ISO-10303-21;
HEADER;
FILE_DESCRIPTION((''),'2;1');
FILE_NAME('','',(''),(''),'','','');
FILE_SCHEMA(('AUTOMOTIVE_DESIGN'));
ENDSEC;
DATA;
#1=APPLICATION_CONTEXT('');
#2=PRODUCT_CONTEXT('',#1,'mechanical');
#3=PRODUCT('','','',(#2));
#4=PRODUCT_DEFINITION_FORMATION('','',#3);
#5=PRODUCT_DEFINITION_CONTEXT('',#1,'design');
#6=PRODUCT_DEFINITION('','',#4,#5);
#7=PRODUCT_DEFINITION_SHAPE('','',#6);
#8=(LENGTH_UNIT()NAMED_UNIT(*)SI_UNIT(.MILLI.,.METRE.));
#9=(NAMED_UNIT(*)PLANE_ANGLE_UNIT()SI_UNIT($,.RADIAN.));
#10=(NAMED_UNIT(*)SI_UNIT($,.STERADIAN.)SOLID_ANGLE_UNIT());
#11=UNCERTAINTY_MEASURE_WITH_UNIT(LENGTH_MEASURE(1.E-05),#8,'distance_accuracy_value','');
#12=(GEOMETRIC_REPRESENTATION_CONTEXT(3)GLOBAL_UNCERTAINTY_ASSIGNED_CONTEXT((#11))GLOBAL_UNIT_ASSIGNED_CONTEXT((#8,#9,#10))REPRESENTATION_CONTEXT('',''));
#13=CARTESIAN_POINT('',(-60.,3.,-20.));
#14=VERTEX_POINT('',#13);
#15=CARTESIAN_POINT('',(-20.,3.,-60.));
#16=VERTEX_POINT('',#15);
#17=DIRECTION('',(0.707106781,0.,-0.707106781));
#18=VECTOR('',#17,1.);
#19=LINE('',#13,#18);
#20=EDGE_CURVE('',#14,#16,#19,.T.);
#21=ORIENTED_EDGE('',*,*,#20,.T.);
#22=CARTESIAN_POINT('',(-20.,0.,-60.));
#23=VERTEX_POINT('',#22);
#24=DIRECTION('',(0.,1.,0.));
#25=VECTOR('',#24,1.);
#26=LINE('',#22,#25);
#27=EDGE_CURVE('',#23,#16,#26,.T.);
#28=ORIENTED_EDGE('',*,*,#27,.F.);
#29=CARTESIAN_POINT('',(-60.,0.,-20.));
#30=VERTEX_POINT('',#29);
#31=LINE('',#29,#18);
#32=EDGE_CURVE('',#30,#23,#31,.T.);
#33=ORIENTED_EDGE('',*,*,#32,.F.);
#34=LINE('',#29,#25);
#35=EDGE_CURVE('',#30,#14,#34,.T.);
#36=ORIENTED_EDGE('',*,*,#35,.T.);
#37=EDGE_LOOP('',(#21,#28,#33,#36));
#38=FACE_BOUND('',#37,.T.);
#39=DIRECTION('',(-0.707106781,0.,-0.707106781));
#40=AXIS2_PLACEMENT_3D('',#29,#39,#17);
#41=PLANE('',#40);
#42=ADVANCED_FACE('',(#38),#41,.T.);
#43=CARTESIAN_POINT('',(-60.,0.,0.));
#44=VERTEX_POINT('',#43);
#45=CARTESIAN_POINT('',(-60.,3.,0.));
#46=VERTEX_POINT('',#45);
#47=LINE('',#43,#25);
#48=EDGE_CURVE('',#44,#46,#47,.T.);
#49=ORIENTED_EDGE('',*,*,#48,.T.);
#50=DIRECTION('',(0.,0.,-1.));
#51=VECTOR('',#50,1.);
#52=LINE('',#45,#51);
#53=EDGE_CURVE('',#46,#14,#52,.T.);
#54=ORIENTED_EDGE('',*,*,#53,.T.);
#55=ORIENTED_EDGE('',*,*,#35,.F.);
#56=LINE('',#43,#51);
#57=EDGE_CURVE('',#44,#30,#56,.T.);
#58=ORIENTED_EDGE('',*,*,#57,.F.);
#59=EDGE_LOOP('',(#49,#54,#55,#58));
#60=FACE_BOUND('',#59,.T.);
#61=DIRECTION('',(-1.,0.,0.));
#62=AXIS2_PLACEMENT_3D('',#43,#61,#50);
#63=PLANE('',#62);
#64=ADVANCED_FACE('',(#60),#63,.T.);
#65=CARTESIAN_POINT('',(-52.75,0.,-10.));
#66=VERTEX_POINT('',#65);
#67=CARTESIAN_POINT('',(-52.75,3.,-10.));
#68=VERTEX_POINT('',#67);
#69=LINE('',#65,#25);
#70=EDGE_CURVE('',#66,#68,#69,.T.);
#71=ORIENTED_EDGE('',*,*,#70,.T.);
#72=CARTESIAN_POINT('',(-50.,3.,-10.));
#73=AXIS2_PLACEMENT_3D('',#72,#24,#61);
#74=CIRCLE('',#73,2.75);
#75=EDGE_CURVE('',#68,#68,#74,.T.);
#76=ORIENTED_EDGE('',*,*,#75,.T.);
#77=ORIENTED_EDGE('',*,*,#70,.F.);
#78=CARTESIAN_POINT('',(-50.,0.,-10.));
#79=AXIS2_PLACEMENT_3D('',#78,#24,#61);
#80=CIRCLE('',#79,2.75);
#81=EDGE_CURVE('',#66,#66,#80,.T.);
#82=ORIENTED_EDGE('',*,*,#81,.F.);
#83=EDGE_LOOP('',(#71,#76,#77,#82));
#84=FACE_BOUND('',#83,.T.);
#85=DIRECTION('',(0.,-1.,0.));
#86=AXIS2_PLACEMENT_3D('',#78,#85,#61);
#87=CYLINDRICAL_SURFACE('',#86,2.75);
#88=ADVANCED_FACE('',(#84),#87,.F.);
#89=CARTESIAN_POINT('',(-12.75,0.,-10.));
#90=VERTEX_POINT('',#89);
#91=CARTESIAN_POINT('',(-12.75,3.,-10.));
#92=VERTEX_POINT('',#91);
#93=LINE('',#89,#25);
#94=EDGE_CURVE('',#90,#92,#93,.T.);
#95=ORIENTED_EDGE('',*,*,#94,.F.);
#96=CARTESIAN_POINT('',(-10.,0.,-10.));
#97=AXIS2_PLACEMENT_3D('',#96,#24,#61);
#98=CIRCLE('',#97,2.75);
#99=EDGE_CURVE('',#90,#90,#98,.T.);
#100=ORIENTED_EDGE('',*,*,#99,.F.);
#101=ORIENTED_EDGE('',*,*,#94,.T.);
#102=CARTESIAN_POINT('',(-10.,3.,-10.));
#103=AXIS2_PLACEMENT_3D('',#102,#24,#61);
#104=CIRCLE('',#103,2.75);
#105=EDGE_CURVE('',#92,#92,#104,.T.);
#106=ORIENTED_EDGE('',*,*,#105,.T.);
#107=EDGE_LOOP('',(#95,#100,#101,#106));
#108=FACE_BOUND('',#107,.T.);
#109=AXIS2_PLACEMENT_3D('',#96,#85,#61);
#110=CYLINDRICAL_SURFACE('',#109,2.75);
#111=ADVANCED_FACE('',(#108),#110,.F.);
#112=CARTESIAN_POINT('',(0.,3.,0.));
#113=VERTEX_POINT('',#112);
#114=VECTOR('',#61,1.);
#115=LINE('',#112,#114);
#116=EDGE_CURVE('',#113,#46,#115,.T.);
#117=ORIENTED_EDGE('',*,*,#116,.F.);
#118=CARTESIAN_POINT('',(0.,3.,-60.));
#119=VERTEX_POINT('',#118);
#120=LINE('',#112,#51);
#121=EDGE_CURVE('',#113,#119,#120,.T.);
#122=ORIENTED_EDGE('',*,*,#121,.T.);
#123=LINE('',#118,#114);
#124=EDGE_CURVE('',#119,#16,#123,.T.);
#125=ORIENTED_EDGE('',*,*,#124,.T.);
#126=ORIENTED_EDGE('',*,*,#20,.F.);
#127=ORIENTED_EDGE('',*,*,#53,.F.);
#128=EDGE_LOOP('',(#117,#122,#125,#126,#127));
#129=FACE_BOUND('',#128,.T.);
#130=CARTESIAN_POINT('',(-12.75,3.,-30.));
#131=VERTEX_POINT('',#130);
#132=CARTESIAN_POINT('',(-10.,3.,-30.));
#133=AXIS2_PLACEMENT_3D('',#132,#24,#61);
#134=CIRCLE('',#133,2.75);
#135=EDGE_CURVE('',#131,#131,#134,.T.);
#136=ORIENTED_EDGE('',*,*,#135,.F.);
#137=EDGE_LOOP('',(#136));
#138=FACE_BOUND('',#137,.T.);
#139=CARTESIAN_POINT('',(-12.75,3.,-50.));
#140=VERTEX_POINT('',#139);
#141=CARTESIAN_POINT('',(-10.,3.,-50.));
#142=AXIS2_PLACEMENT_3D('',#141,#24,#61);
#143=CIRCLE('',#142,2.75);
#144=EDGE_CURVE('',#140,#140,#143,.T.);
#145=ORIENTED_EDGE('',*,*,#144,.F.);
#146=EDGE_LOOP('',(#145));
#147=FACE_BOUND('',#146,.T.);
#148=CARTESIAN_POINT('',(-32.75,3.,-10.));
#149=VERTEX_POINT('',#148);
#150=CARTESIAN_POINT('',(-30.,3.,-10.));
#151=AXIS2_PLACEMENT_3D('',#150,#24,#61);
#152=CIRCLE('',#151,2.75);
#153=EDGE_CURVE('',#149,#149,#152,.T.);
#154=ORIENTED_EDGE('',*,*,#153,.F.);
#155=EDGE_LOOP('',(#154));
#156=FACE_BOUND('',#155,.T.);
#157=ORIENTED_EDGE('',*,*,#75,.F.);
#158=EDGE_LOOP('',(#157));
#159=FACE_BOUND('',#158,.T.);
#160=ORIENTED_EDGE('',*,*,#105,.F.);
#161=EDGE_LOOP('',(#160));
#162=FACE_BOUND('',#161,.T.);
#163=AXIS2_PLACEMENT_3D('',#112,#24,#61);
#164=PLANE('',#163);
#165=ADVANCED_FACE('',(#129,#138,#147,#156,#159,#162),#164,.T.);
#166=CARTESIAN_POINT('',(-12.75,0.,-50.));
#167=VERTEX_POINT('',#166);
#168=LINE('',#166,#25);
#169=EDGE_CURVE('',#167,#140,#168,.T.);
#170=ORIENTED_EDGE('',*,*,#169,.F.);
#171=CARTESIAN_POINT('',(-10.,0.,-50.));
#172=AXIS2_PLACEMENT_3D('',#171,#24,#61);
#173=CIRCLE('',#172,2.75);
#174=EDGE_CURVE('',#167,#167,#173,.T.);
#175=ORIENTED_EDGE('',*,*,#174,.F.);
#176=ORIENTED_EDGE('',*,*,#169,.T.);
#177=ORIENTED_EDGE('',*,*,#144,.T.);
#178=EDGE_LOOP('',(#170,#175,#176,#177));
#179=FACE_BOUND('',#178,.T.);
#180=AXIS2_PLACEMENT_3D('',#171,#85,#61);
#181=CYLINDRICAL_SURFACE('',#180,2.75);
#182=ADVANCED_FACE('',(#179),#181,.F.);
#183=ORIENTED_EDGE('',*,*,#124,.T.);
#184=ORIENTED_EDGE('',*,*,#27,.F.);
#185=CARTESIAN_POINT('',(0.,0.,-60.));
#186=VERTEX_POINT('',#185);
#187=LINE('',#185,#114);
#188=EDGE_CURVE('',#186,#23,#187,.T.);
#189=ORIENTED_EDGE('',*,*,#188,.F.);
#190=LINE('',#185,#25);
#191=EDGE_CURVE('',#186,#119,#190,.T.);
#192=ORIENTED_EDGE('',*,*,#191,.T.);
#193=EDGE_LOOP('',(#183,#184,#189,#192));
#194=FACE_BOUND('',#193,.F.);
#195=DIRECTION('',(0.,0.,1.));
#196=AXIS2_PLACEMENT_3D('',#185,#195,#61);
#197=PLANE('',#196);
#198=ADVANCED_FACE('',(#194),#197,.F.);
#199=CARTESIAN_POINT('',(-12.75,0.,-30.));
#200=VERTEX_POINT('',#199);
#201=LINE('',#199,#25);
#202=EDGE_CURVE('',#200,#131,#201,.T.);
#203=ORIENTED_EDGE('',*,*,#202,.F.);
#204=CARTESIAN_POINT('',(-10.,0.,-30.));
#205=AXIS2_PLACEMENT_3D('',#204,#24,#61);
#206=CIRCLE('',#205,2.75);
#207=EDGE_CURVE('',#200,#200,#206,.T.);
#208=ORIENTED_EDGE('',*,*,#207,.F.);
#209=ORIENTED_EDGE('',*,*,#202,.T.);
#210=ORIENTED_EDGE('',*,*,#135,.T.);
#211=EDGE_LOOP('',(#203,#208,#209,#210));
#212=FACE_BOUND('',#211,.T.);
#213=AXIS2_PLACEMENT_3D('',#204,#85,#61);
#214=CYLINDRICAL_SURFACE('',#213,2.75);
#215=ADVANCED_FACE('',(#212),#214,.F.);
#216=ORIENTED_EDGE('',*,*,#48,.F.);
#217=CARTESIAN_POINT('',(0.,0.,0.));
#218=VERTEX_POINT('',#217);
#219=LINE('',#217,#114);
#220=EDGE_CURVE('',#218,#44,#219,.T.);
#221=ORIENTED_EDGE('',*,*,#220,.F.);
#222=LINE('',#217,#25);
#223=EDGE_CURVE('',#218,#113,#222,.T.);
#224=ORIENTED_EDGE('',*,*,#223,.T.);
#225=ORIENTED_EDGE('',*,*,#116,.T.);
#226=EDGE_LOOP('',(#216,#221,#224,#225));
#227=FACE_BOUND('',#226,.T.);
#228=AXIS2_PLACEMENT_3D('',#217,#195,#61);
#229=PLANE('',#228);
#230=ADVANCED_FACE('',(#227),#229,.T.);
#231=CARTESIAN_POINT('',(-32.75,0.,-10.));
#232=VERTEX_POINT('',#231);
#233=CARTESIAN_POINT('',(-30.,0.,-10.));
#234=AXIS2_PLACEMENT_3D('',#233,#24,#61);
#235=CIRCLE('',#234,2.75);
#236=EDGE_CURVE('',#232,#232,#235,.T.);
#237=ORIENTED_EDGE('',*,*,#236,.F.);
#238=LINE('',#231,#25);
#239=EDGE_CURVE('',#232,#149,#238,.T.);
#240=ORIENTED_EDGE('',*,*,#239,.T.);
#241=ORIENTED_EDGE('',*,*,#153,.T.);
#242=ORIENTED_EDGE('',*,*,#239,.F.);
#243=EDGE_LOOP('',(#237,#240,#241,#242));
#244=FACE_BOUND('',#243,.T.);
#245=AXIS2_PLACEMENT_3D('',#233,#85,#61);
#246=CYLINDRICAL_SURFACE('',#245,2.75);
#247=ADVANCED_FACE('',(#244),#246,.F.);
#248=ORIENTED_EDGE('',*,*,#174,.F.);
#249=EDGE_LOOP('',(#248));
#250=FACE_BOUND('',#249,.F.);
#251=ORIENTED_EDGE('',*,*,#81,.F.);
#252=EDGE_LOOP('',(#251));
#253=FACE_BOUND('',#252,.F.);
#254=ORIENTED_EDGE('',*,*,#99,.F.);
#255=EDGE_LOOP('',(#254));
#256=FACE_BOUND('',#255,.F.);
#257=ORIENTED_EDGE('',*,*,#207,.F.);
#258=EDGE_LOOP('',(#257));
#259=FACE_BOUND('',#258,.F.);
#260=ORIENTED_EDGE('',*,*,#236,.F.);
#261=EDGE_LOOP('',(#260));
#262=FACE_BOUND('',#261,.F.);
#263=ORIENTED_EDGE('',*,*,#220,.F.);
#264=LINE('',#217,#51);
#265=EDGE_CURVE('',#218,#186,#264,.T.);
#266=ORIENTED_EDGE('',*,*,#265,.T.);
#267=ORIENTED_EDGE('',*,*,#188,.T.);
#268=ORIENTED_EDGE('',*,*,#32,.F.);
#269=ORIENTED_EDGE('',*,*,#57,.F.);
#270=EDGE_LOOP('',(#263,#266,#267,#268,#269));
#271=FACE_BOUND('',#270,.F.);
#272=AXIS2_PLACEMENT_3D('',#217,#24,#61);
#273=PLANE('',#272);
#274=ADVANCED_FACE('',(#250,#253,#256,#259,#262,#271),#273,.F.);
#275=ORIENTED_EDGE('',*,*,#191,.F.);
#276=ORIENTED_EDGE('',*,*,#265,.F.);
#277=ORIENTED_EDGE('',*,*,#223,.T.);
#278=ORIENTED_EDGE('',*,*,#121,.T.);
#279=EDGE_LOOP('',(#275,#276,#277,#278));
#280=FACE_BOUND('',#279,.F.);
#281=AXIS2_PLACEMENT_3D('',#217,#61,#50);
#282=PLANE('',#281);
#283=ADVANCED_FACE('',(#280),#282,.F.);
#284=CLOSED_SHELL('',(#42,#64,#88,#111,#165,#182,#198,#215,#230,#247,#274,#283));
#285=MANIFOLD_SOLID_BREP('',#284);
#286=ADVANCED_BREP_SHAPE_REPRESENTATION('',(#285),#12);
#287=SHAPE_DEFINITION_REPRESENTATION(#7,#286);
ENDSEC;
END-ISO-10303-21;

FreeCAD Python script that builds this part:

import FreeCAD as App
import Part
import Sketcher
from FreeCAD import Vector
Q = App.Units.Quantity


def add_polygon(sketch, points):
    """Adds a closed chain of lines whose ends are joined by coincident constraints."""
    first, n = sketch.GeometryCount, len(points)
    for a, b in zip(points, points[1:] + points[:1]):
        sketch.addGeometry(Part.LineSegment(App.Vector(*a, 0), App.Vector(*b, 0)), False)
    for i in range(n):
        sketch.addConstraint(Sketcher.Constraint("Coincident", first + i, 2, first + (i + 1) % n, 1))

doc = App.newDocument("Part")
body = doc.addObject("PartDesign::Body", "Body")

sketch1 = doc.addObject("Sketcher::SketchObject", "Sketch")
body.addObject(sketch1)
sketch1.AttachmentSupport = (doc.XZ_Plane, [""])
sketch1.MapMode = "FlatFace"
add_polygon(sketch1, [(-60, 0), (0, 0), (0, -60), (-20, -60), (-60, -20)])
sketch1.addGeometry(Part.Circle(Vector(-10, -50, 0), Vector(0, 0, 1), 2.75), False)
sketch1.addGeometry(Part.Circle(Vector(-10, -30, 0), Vector(0, 0, 1), 2.75), False)
sketch1.addGeometry(Part.Circle(Vector(-10, -10, 0), Vector(0, 0, 1), 2.75), False)
sketch1.addGeometry(Part.Circle(Vector(-30, -10, 0), Vector(0, 0, 1), 2.75), False)
sketch1.addGeometry(Part.Circle(Vector(-50, -10, 0), Vector(0, 0, 1), 2.75), False)
sketch1.addConstraint([
    Sketcher.Constraint("Horizontal", 0),
    Sketcher.Constraint("Vertical", 1),
    Sketcher.Constraint("Horizontal", 2),
    Sketcher.Constraint("Vertical", 4),
    Sketcher.Constraint("Coincident", 0, 2, -1, 1),
    Sketcher.Constraint("Equal", 5, 6),
    Sketcher.Constraint("Equal", 6, 7),
    Sketcher.Constraint("Equal", 7, 8),
    Sketcher.Constraint("Equal", 8, 9),
    Sketcher.Constraint("Horizontal", 7, 3, 8, 3),
    Sketcher.Constraint("Horizontal", 8, 3, 9, 3),
    Sketcher.Constraint("Vertical", 5, 3, 6, 3),
    Sketcher.Constraint("Vertical", 6, 3, 7, 3),
    Sketcher.Constraint("Equal", 0, 1),
    Sketcher.Constraint("Equal", 2, 4),
    Sketcher.Constraint("Diameter", 5, Q("5.5 mm")),
    Sketcher.Constraint("DistanceX", 0, 1, 0, 2, Q("60 mm")),
    Sketcher.Constraint("DistanceX", 2, 2, 2, 1, Q("20 mm")),
    Sketcher.Constraint("DistanceX", 5, 3, -1, 1, Q("10 mm")),
    Sketcher.Constraint("DistanceY", 7, 3, -1, 1, Q("10 mm")),
    Sketcher.Constraint("DistanceY", 5, 3, 6, 3, Q("20 mm")),
    Sketcher.Constraint("DistanceY", 6, 3, 7, 3, Q("20 mm")),
    Sketcher.Constraint("DistanceX", 8, 3, 7, 3, Q("20 mm")),
    Sketcher.Constraint("DistanceX", 9, 3, 8, 3, Q("20 mm")),
])
pad1 = doc.addObject("PartDesign::Pad", "Pad")
body.addObject(pad1)
pad1.Profile = sketch1
pad1.Length = 3
pad1.Reversed = True

doc.recompute()
